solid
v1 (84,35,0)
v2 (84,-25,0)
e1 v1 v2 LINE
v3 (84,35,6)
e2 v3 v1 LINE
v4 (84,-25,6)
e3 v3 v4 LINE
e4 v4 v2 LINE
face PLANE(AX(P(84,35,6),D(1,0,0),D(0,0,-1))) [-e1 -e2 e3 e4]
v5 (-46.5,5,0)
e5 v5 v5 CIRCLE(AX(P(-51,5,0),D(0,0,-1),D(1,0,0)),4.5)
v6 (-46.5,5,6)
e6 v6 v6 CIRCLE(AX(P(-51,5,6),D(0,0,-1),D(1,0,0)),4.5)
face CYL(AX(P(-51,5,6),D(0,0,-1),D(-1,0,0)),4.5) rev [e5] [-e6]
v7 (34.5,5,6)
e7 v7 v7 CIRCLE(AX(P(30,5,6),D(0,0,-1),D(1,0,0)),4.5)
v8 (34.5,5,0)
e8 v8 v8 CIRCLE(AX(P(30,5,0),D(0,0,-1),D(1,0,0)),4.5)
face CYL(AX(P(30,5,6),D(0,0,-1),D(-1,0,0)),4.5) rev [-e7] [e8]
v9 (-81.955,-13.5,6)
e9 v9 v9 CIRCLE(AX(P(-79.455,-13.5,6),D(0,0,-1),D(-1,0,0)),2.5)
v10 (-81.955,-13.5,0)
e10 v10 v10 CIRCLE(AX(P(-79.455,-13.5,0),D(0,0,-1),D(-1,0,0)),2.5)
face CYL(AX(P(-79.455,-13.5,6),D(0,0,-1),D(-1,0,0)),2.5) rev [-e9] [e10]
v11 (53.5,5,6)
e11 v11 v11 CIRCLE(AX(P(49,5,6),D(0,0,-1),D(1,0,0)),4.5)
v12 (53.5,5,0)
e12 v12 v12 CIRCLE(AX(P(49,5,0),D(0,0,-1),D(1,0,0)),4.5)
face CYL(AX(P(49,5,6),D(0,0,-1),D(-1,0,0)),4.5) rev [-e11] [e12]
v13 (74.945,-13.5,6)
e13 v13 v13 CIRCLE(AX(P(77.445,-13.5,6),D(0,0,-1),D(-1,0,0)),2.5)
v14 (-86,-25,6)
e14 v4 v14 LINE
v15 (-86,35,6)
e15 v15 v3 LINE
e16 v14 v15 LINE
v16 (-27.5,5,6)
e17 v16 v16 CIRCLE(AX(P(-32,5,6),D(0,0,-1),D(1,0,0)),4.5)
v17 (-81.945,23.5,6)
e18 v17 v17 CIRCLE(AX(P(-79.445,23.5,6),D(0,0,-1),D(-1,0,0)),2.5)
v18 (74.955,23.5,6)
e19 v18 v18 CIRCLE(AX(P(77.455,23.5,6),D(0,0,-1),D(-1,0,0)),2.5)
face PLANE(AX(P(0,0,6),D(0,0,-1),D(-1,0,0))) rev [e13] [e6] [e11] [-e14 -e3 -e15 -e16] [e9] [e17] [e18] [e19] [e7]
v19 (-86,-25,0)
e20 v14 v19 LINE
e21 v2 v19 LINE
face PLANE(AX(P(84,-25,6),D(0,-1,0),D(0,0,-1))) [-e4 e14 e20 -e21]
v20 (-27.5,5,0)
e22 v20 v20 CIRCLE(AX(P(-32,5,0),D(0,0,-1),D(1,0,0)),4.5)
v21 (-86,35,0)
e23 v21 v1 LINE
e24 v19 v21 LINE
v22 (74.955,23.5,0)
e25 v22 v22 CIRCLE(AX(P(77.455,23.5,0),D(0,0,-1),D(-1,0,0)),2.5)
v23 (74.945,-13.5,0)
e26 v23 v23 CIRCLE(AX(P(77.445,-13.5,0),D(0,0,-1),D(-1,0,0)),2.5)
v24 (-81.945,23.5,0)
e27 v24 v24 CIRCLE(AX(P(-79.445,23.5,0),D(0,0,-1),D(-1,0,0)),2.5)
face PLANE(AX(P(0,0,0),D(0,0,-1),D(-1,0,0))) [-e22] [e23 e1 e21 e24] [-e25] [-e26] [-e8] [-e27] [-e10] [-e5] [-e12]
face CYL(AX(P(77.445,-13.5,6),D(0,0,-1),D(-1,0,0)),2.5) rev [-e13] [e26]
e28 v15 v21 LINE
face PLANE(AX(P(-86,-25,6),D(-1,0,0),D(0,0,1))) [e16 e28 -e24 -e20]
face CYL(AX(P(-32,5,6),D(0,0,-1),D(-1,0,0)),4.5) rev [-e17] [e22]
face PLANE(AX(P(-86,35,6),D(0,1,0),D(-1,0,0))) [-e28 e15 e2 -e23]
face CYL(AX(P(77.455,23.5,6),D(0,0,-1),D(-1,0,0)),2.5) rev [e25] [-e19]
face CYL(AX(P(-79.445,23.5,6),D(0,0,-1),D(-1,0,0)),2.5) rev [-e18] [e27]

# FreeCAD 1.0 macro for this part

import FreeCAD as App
import Part
import Sketcher
from FreeCAD import Vector

doc = App.newDocument("Part")
body = doc.addObject("PartDesign::Body", "Body")

# Sketch on XY plane
sketch1 = body.newObject("Sketcher::SketchObject", "Sketch")
sketch1.AttachmentSupport = (doc.getObject("XY_Plane"), [""])
sketch1.MapMode = "FlatFace"
sketch1.addGeometry([
    Part.LineSegment(Vector(84, 35, 0), Vector(84, -25, 0)),  # 0
    Part.LineSegment(Vector(84, -25, 0), Vector(-86, -25, 0)),  # 1
    Part.LineSegment(Vector(-86, -25, 0), Vector(-86, 35, 0)),  # 2
    Part.LineSegment(Vector(-86, 35, 0), Vector(84, 35, 0)),  # 3
    Part.Circle(Vector(77.445, -13.5, 0), Vector(0, 0, 1), 2.5),  # 4
    Part.Circle(Vector(-79.455, -13.5, 0), Vector(0, 0, 1), 2.5),  # 5
    Part.Circle(Vector(49, 5, 0), Vector(0, 0, 1), 4.5),  # 6
    Part.Circle(Vector(30, 5, 0), Vector(0, 0, 1), 4.5),  # 7
    Part.Circle(Vector(77.455, 23.5, 0), Vector(0, 0, 1), 2.5),  # 8
    Part.Circle(Vector(-32, 5, 0), Vector(0, 0, 1), 4.5),  # 9
    Part.Circle(Vector(-51, 5, 0), Vector(0, 0, 1), 4.5),  # 10
    Part.Circle(Vector(-79.445, 23.5, 0), Vector(0, 0, 1), 2.5),  # 11
], False)
sketch1.addConstraint([
    Sketcher.Constraint("Coincident", 0, 2, 1, 1),
    Sketcher.Constraint("Coincident", 1, 2, 2, 1),
    Sketcher.Constraint("Coincident", 2, 2, 3, 1),
    Sketcher.Constraint("Coincident", 3, 2, 0, 1),
    Sketcher.Constraint("Vertical", 0),
    Sketcher.Constraint("Horizontal", 1),
    Sketcher.Constraint("Vertical", 2),
    Sketcher.Constraint("Horizontal", 3),
    Sketcher.Constraint("Equal", 4, 5),
    Sketcher.Constraint("Equal", 6, 7),
    Sketcher.Constraint("Equal", 5, 8),
    Sketcher.Constraint("Equal", 7, 9),
    Sketcher.Constraint("Equal", 9, 10),
    Sketcher.Constraint("Equal", 8, 11),
    Sketcher.Constraint("Horizontal", 4, 3, 5, 3),
    Sketcher.Constraint("Horizontal", 6, 3, 7, 3),
    Sketcher.Constraint("Horizontal", 7, 3, 9, 3),
    Sketcher.Constraint("Horizontal", 9, 3, 10, 3),
    Sketcher.Constraint("Horizontal", 8, 3, 11, 3),
    Sketcher.Constraint("Diameter", 4, 5.0),
    Sketcher.Constraint("Diameter", 6, 9.0),
    Sketcher.Constraint("DistanceX", 1, 2, 1, 1, 170.0),
    Sketcher.Constraint("DistanceY", 0, 2, 0, 1, 60.0),
    Sketcher.Constraint("DistanceX", -1, 1, 6, 3, 49.0),
    Sketcher.Constraint("DistanceY", -1, 1, 6, 3, 5.0),
    Sketcher.Constraint("DistanceX", -1, 1, 7, 3, 30.0),
    Sketcher.Constraint("DistanceX", 9, 3, -1, 1, 32.0),
    Sketcher.Constraint("DistanceX", 10, 3, -1, 1, 51.0),
    Sketcher.Constraint("DistanceX", -1, 1, 0, 2, 84.0),
    Sketcher.Constraint("DistanceY", 0, 2, -1, 1, 25.0),
    Sketcher.Constraint("DistanceY", 4, 3, 8, 3, 37.0),
    Sketcher.Constraint("DistanceY", 4, 3, -1, 1, 13.5),
    Sketcher.Constraint("DistanceX", 5, 3, 4, 3, 156.9),
    Sketcher.Constraint("DistanceX", 4, 3, 8, 3, 0.01),
    Sketcher.Constraint("DistanceX", 5, 3, 11, 3, 0.01),
    Sketcher.Constraint("DistanceX", -1, 1, 4, 3, 77.445),
])
pad1 = body.newObject("PartDesign::Pad", "Pad")
pad1.Profile = sketch1
pad1.Length = 6

doc.recompute()
